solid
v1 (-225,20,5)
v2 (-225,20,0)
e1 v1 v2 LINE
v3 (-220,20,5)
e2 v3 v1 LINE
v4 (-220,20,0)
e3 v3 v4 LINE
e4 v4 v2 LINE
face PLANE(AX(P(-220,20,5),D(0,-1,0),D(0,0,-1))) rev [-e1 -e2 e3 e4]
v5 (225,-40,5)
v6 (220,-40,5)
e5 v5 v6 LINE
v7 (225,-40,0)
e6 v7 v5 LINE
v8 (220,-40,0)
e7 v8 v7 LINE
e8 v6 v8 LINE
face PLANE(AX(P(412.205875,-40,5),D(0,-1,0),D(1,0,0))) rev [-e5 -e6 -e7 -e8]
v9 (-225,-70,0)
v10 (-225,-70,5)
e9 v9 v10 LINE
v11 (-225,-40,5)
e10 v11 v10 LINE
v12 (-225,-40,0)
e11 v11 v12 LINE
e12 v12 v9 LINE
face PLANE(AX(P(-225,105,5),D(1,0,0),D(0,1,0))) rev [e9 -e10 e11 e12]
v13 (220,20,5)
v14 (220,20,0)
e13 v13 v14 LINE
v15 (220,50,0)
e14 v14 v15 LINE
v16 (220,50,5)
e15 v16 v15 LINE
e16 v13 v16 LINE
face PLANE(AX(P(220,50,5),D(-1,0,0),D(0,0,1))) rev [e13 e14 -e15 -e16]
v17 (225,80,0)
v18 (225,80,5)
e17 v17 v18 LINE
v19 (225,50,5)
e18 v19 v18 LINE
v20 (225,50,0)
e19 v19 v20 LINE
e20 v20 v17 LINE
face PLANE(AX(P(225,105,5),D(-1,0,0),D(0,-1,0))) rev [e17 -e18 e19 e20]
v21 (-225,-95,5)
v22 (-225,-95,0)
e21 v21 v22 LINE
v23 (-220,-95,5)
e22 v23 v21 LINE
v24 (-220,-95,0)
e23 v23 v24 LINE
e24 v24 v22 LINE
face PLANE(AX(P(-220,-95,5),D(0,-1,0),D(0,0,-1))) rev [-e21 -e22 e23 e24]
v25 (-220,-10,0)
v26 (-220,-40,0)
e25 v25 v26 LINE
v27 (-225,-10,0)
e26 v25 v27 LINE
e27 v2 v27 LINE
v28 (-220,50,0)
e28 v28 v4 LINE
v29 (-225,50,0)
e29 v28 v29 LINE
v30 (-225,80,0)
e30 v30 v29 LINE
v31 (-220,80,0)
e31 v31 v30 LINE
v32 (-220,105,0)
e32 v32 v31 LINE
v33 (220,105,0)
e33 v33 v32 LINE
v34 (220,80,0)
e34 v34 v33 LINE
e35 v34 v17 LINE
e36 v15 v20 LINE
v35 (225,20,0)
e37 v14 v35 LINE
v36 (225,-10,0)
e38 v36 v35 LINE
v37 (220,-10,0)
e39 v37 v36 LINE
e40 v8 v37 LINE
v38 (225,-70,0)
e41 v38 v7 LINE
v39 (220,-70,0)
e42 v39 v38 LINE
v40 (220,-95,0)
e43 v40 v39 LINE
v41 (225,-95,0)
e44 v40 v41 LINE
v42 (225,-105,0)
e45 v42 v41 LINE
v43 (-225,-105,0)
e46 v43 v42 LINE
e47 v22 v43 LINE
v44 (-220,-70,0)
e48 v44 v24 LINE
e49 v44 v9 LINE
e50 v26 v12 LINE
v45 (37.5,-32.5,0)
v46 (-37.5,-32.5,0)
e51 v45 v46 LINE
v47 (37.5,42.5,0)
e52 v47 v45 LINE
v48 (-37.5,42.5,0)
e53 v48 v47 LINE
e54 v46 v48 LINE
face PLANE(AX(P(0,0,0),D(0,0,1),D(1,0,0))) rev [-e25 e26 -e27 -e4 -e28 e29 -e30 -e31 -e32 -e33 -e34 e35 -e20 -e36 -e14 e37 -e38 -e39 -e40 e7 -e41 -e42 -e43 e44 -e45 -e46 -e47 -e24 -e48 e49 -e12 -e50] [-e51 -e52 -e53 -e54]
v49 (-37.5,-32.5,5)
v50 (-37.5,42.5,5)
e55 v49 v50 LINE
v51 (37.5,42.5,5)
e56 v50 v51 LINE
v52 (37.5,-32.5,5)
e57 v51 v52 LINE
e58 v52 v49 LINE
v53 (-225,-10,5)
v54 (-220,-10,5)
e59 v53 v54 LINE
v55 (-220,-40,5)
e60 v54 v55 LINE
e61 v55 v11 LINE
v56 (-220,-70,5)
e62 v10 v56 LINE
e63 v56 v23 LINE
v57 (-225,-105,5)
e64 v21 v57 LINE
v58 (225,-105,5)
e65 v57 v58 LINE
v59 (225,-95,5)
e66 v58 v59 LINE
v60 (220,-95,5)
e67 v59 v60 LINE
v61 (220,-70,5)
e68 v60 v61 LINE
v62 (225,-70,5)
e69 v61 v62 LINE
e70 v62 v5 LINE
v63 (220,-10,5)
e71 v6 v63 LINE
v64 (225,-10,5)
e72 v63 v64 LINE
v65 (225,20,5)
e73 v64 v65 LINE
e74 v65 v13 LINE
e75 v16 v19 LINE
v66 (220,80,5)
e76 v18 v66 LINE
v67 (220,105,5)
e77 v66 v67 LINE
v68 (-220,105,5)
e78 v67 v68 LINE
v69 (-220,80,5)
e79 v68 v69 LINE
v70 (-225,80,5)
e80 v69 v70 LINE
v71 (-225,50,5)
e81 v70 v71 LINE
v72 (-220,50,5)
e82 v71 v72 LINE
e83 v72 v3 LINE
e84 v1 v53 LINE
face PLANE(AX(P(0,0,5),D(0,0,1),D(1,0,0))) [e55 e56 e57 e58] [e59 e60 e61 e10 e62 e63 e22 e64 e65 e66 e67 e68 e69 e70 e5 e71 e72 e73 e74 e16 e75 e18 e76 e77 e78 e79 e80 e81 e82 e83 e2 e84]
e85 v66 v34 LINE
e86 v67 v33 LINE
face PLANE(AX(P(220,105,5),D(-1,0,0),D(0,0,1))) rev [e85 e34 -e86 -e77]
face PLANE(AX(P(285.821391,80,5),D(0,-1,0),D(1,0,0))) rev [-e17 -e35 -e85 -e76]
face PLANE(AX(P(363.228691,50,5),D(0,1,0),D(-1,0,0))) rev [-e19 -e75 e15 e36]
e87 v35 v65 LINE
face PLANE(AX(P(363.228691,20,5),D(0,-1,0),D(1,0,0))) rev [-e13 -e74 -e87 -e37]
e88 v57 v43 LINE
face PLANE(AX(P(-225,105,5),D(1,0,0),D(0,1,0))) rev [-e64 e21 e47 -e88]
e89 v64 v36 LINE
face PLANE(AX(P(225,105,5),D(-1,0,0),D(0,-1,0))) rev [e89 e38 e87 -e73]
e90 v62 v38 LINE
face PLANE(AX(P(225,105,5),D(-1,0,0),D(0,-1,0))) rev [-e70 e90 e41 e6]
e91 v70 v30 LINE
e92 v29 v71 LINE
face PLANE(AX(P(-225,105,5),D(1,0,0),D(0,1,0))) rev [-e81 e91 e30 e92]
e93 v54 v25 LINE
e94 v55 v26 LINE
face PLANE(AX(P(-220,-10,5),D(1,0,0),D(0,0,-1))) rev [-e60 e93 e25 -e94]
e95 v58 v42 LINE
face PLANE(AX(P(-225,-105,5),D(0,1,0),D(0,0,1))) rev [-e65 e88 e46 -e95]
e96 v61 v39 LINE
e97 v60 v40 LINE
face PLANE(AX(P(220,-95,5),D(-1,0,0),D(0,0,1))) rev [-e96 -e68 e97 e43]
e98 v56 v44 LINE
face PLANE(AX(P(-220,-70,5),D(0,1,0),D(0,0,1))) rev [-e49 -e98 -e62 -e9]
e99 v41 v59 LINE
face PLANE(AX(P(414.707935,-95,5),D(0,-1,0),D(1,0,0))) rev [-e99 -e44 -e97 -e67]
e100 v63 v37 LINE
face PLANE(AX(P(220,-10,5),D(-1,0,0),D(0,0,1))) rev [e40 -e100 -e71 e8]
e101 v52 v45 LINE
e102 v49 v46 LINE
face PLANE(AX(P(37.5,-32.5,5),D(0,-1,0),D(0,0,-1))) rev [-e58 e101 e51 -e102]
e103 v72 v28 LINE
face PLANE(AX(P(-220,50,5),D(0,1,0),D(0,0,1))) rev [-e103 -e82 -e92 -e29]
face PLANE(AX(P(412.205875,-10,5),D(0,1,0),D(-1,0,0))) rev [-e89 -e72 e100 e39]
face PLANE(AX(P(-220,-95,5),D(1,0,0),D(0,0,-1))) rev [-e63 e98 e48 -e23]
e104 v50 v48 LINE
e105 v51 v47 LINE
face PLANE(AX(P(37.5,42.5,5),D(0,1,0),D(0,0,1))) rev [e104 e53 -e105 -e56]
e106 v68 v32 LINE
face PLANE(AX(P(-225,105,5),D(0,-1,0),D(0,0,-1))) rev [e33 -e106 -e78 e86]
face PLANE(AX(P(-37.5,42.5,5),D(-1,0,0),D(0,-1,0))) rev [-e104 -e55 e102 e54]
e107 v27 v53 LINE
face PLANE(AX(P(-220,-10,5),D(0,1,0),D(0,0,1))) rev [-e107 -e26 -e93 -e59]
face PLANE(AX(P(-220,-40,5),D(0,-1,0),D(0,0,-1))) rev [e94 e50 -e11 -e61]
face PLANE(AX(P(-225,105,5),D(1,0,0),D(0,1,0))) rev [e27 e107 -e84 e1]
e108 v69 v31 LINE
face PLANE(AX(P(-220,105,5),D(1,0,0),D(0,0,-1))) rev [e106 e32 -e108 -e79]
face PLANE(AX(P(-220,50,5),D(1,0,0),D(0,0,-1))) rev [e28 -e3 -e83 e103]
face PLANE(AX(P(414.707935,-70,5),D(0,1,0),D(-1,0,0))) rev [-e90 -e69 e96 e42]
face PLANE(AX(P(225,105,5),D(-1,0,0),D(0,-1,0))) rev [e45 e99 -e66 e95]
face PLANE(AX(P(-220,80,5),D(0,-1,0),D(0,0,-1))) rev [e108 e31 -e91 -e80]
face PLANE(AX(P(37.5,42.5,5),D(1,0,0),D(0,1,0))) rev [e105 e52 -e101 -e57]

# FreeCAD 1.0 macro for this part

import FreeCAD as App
import Part
import Sketcher


def add_polygon(sketch, points):
    """Adds a closed chain of lines whose ends are joined by coincident constraints."""
    first, n = sketch.GeometryCount, len(points)
    for a, b in zip(points, points[1:] + points[:1]):
        sketch.addGeometry(Part.LineSegment(App.Vector(*a, 0), App.Vector(*b, 0)), False)
    for i in range(n):
        sketch.addConstraint(Sketcher.Constraint("Coincident", first + i, 2, first + (i + 1) % n, 1))

doc = App.newDocument("Part")
params = doc.addObject("Spreadsheet::Sheet", "Params")
for row, (alias, value) in enumerate([
    ("sketch1_width", "450 mm"),
    ("sketch1_height", "210 mm"),
    ("pad1_length", "5 mm"),
    ("sketch2_height", "25 mm"),
    ("sketch2_height2", "30 mm"),
    ("sketch3_width", "75 mm"),
], start=1):
    params.set(f"A{row}", alias)
    params.set(f"B{row}", "=" + value)
    params.setAlias(f"B{row}", alias)

body = doc.addObject("PartDesign::Body", "Body")

sketch1 = doc.addObject("Sketcher::SketchObject", "Sketch")
body.addObject(sketch1)
sketch1.AttachmentSupport = (doc.XY_Plane, [""])
sketch1.MapMode = "FlatFace"
add_polygon(sketch1, [(-225, 105), (-225, -105), (225, -105), (225, 105)])
sketch1.addConstraint([
    Sketcher.Constraint("Vertical", 0),
    Sketcher.Constraint("Horizontal", 1),
    Sketcher.Constraint("Vertical", 2),
    Sketcher.Constraint("Horizontal", 3),
    Sketcher.Constraint("Symmetric", 0, 2, 2, 2, -1, 1),
    Sketcher.Constraint("DistanceX", 1, 1, 1, 2, 450.0),
    Sketcher.Constraint("DistanceY", 0, 2, 0, 1, 210.0),
])
sketch1.setExpression("Constraints[9]", "Params.sketch1_width")
sketch1.setExpression("Constraints[10]", "Params.sketch1_height")
pad1 = doc.addObject("PartDesign::Pad", "Pad")
body.addObject(pad1)
pad1.Profile = sketch1
pad1.setExpression("Length", "Params.pad1_length")

sketch2 = doc.addObject("Sketcher::SketchObject", "Sketch001")
body.addObject(sketch2)
sketch2.AttachmentSupport = (doc.XY_Plane, [""])
sketch2.MapMode = "FlatFace"
add_polygon(sketch2, [(285.821391, 105), (285.821391, 80), (220, 80), (220, 105)])
add_polygon(sketch2, [(363.228691, 50), (363.228691, 20), (220, 20), (220, 50)])
add_polygon(sketch2, [(412.205875, -10), (412.205875, -40), (220, -40), (220, -10)])
add_polygon(sketch2, [(414.707935, -70), (414.707935, -95), (220, -95), (220, -70)])
add_polygon(sketch2, [(-220, 105), (-220, 80), (-290.821391, 80), (-290.821391, 105)])
add_polygon(sketch2, [(-220, 50), (-220, 20), (-368.228691, 20), (-368.228691, 50)])
add_polygon(sketch2, [(-220, -10), (-220, -40), (-414.705875, -40), (-414.705875, -10)])
add_polygon(sketch2, [(-220, -70), (-220, -95), (-419.707935, -95), (-419.707935, -70)])
sketch2.addConstraint([
    Sketcher.Constraint("Vertical", 0),
    Sketcher.Constraint("Horizontal", 1),
    Sketcher.Constraint("Vertical", 2),
    Sketcher.Constraint("Horizontal", 3),
    Sketcher.Constraint("Vertical", 4),
    Sketcher.Constraint("Horizontal", 5),
    Sketcher.Constraint("Vertical", 6),
    Sketcher.Constraint("Horizontal", 7),
    Sketcher.Constraint("Vertical", 8),
    Sketcher.Constraint("Horizontal", 9),
    Sketcher.Constraint("Vertical", 10),
    Sketcher.Constraint("Horizontal", 11),
    Sketcher.Constraint("Vertical", 12),
    Sketcher.Constraint("Horizontal", 13),
    Sketcher.Constraint("Vertical", 14),
    Sketcher.Constraint("Horizontal", 15),
    Sketcher.Constraint("Vertical", 16),
    Sketcher.Constraint("Horizontal", 17),
    Sketcher.Constraint("Vertical", 18),
    Sketcher.Constraint("Horizontal", 19),
    Sketcher.Constraint("Vertical", 20),
    Sketcher.Constraint("Horizontal", 21),
    Sketcher.Constraint("Vertical", 22),
    Sketcher.Constraint("Horizontal", 23),
    Sketcher.Constraint("Vertical", 24),
    Sketcher.Constraint("Horizontal", 25),
    Sketcher.Constraint("Vertical", 26),
    Sketcher.Constraint("Horizontal", 27),
    Sketcher.Constraint("Vertical", 28),
    Sketcher.Constraint("Horizontal", 29),
    Sketcher.Constraint("Vertical", 30),
    Sketcher.Constraint("Horizontal", 31),
    Sketcher.Constraint("Symmetric", 1, 2, 16, 2, -2),
    Sketcher.Constraint("Symmetric", 5, 2, 20, 2, -2),
    Sketcher.Constraint("Symmetric", 9, 2, 24, 2, -2),
    Sketcher.Constraint("Symmetric", 13, 2, 28, 2, -2),
    Sketcher.Constraint("Horizontal", 3, 2, 18, 2),
    Sketcher.Constraint("Horizontal", 7, 2, 22, 2),
    Sketcher.Constraint("Horizontal", 11, 2, 26, 2),
    Sketcher.Constraint("Horizontal", 15, 2, 30, 2),
    Sketcher.Constraint("Vertical", 2, 2, 5, 2),
    Sketcher.Constraint("Vertical", 6, 2, 9, 2),
    Sketcher.Constraint("Vertical", 10, 2, 13, 2),
    Sketcher.Constraint("Equal", 6, 8),
    Sketcher.Constraint("Equal", 2, 12),
    Sketcher.Constraint("DistanceY", 0, 2, 0, 1, 25.0),
    Sketcher.Constraint("DistanceY", 4, 2, 4, 1, 30.0),
    Sketcher.Constraint("DistanceY", -1, 1, 0, 2, 80.0),
    Sketcher.Constraint("DistanceX", -1, 1, 1, 2, 220.0),
    Sketcher.Constraint("DistanceY", -1, 1, 4, 2, 20.0),
    Sketcher.Constraint("DistanceY", 8, 2, -1, 1, 40.0),
    Sketcher.Constraint("DistanceY", 12, 2, -1, 1, 95.0),
    Sketcher.Constraint("DistanceX", 1, 2, 1, 1, 65.821391),
    Sketcher.Constraint("DistanceX", 5, 2, 5, 1, 143.228691),
    Sketcher.Constraint("DistanceX", 17, 2, 17, 1, 70.821391),
    Sketcher.Constraint("DistanceX", 21, 2, 21, 1, 148.228691),
    Sketcher.Constraint("DistanceX", 9, 2, 9, 1, 192.205875),
    Sketcher.Constraint("DistanceX", 13, 2, 13, 1, 194.707935),
    Sketcher.Constraint("DistanceX", 25, 2, 25, 1, 194.705875),
    Sketcher.Constraint("DistanceX", 29, 2, 29, 1, 199.707935),
])
sketch2.setExpression("Constraints[77]", "Params.sketch2_height")
sketch2.setExpression("Constraints[78]", "Params.sketch2_height2")
pocket1 = doc.addObject("PartDesign::Pocket", "Pocket")
body.addObject(pocket1)
pocket1.Profile = sketch2
pocket1.Type = "ThroughAll"
pocket1.Reversed = True

sketch3 = doc.addObject("Sketcher::SketchObject", "Sketch002")
body.addObject(sketch3)
sketch3.AttachmentSupport = (doc.XY_Plane, [""])
sketch3.MapMode = "FlatFace"
add_polygon(sketch3, [(37.5, 42.5), (37.5, -32.5), (-37.5, -32.5), (-37.5, 42.5)])
sketch3.addConstraint([
    Sketcher.Constraint("Vertical", 0),
    Sketcher.Constraint("Horizontal", 1),
    Sketcher.Constraint("Vertical", 2),
    Sketcher.Constraint("Horizontal", 3),
    Sketcher.Constraint("Equal", 3, 0),
    Sketcher.Constraint("DistanceX", 1, 2, 1, 1, 75.0),
    Sketcher.Constraint("DistanceX", -1, 1, 0, 2, 37.5),
    Sketcher.Constraint("DistanceY", 0, 2, -1, 1, 32.5),
])
sketch3.setExpression("Constraints[9]", "Params.sketch3_width")
pocket2 = doc.addObject("PartDesign::Pocket", "Pocket001")
body.addObject(pocket2)
pocket2.Profile = sketch3
pocket2.Type = "ThroughAll"
pocket2.Reversed = True

doc.recompute()
